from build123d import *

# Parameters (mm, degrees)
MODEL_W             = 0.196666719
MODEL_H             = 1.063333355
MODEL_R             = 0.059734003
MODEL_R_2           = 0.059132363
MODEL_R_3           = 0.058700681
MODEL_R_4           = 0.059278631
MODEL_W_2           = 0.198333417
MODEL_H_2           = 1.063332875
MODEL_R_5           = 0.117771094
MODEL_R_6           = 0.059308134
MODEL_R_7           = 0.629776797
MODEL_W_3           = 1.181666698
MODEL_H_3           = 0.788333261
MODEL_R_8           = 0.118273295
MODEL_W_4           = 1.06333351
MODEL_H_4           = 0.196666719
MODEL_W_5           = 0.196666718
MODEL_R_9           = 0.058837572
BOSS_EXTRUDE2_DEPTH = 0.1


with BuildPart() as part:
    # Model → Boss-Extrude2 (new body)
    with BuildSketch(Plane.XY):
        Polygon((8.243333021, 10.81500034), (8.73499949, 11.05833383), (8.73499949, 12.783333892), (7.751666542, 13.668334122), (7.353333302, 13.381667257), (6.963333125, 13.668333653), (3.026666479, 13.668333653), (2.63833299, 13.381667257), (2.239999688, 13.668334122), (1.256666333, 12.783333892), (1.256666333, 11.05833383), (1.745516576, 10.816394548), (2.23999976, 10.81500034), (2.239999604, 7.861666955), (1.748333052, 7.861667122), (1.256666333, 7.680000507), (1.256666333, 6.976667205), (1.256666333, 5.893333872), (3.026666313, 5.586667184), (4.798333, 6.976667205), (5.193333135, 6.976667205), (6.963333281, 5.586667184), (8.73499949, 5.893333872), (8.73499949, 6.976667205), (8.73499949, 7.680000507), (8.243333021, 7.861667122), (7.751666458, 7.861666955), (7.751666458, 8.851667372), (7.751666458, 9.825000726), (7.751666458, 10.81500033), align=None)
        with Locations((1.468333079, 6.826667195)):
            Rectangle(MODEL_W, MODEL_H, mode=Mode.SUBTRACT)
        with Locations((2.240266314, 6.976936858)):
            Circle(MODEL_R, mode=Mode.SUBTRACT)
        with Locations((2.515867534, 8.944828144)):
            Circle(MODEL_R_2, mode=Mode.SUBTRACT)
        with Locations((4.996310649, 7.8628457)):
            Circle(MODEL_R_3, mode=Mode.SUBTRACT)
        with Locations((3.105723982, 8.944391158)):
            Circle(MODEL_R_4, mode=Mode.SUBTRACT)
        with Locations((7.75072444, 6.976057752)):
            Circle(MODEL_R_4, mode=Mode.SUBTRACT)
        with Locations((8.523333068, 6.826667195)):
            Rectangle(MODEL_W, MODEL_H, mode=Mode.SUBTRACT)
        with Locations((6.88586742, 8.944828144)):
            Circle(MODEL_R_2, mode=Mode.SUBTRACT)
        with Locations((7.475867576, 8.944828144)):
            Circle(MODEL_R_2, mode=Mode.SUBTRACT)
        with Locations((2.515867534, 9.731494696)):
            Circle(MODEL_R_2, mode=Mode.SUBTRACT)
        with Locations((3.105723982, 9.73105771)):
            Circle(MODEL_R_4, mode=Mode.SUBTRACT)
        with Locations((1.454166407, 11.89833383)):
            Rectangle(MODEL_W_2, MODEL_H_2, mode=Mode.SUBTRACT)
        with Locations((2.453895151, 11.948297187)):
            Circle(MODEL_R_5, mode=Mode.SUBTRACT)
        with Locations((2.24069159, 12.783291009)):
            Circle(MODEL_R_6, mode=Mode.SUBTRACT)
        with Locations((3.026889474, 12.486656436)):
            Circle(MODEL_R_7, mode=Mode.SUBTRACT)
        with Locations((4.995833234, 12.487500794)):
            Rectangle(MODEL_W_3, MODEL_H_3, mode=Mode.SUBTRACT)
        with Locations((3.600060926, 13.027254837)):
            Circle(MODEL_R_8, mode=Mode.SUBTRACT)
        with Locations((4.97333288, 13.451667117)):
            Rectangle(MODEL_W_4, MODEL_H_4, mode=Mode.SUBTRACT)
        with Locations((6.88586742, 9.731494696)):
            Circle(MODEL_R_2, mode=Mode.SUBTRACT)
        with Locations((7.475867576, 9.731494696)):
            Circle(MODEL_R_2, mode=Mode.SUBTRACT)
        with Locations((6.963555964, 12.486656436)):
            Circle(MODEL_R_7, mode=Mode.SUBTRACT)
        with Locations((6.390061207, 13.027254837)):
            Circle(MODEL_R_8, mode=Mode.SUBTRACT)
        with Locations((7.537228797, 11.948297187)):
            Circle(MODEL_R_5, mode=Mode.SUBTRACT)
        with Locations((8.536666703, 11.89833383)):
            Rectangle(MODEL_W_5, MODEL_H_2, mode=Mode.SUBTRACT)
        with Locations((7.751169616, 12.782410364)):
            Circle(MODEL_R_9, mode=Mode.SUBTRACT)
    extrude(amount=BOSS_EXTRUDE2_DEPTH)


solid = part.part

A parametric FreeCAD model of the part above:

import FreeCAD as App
import Part
import Sketcher
from FreeCAD import Vector
Q = App.Units.Quantity


def add_polygon(sketch, points):
    """Adds a closed chain of lines whose ends are joined by coincident constraints."""
    first, n = sketch.GeometryCount, len(points)
    for a, b in zip(points, points[1:] + points[:1]):
        sketch.addGeometry(Part.LineSegment(App.Vector(*a, 0), App.Vector(*b, 0)), False)
    for i in range(n):
        sketch.addConstraint(Sketcher.Constraint("Coincident", first + i, 2, first + (i + 1) % n, 1))

doc = App.newDocument("Part")
body = doc.addObject("PartDesign::Body", "Body")

# Sketch on XY plane
sketch1 = body.newObject("Sketcher::SketchObject", "Sketch")
sketch1.AttachmentSupport = (doc.getObject("XY_Plane"), [""])
sketch1.MapMode = "FlatFace"
add_polygon(sketch1, [(8.24, 10.82), (8.73, 11.06), (8.73, 12.78), (7.75, 13.67), (7.35, 13.38), (6.96, 13.67), (3.03, 13.67), (2.64, 13.38), (2.24, 13.67), (1.26, 12.78), (1.26, 11.06), (1.75, 10.82), (2.24, 10.82), (2.24, 7.86), (1.75, 7.86), (1.26, 7.68), (1.26, 5.89), (3.03, 5.59), (4.8, 6.98), (5.19, 6.98), (6.96, 5.59), (8.73, 5.89), (8.73, 7.68), (8.24, 7.86), (7.75, 7.86), (7.75, 10.82)])  # lines 0-25
add_polygon(sketch1, [(1.57, 6.3), (1.37, 6.3), (1.37, 7.36), (1.57, 7.36)])  # lines 26-29
sketch1.addGeometry(Part.Circle(Vector(2.24, 6.98, 0), Vector(0, 0, 1), 0.06), False)  # 30
sketch1.addGeometry(Part.Circle(Vector(2.52, 8.94, 0), Vector(0, 0, 1), 0.06), False)  # 31
sketch1.addGeometry(Part.Circle(Vector(3.11, 8.94, 0), Vector(0, 0, 1), 0.06), False)  # 32
sketch1.addGeometry(Part.Circle(Vector(2.52, 9.73, 0), Vector(0, 0, 1), 0.06), False)  # 33
sketch1.addGeometry(Part.Circle(Vector(3.11, 9.73, 0), Vector(0, 0, 1), 0.06), False)  # 34
sketch1.addGeometry(Part.Circle(Vector(5, 7.86, 0), Vector(0, 0, 1), 0.06), False)  # 35
sketch1.addGeometry(Part.Circle(Vector(7.75, 6.98, 0), Vector(0, 0, 1), 0.06), False)  # 36
add_polygon(sketch1, [(8.62, 6.3), (8.42, 6.3), (8.42, 7.36), (8.62, 7.36)])  # lines 37-40
sketch1.addGeometry(Part.Circle(Vector(6.89, 8.94, 0), Vector(0, 0, 1), 0.06), False)  # 41
sketch1.addGeometry(Part.Circle(Vector(7.48, 8.94, 0), Vector(0, 0, 1), 0.06), False)  # 42
sketch1.addGeometry(Part.Circle(Vector(6.89, 9.73, 0), Vector(0, 0, 1), 0.06), False)  # 43
sketch1.addGeometry(Part.Circle(Vector(7.48, 9.73, 0), Vector(0, 0, 1), 0.06), False)  # 44
add_polygon(sketch1, [(1.55, 11.37), (1.35, 11.37), (1.35, 12.43), (1.55, 12.43)])  # lines 45-48
sketch1.addGeometry(Part.Circle(Vector(2.45, 11.95, 0), Vector(0, 0, 1), 0.12), False)  # 49
sketch1.addGeometry(Part.Circle(Vector(3.03, 12.49, 0), Vector(0, 0, 1), 0.63), False)  # 50
sketch1.addGeometry(Part.Circle(Vector(2.24, 12.78, 0), Vector(0, 0, 1), 0.06), False)  # 51
sketch1.addGeometry(Part.Circle(Vector(3.6, 13.03, 0), Vector(0, 0, 1), 0.12), False)  # 52
add_polygon(sketch1, [(5.5, 13.35), (4.44, 13.35), (4.44, 13.55), (5.5, 13.55)])  # lines 53-56
add_polygon(sketch1, [(5.59, 12.09), (4.4, 12.09), (4.4, 12.88), (5.59, 12.88)])  # lines 57-60
sketch1.addGeometry(Part.Circle(Vector(6.39, 13.03, 0), Vector(0, 0, 1), 0.12), False)  # 61
sketch1.addGeometry(Part.Circle(Vector(7.54, 11.95, 0), Vector(0, 0, 1), 0.12), False)  # 62
sketch1.addGeometry(Part.Circle(Vector(6.96, 12.49, 0), Vector(0, 0, 1), 0.63), False)  # 63
add_polygon(sketch1, [(8.64, 11.37), (8.44, 11.37), (8.44, 12.43), (8.64, 12.43)])  # lines 64-67
sketch1.addGeometry(Part.Circle(Vector(7.75, 12.78, 0), Vector(0, 0, 1), 0.06), False)  # 68
sketch1.addConstraint(Sketcher.Constraint("Vertical", 1))
sketch1.addConstraint(Sketcher.Constraint("Horizontal", 5))
sketch1.addConstraint(Sketcher.Constraint("Vertical", 9))
sketch1.addConstraint(Sketcher.Constraint("Vertical", 12))
sketch1.addConstraint(Sketcher.Constraint("Horizontal", 13))
sketch1.addConstraint(Sketcher.Constraint("Vertical", 15))
sketch1.addConstraint(Sketcher.Constraint("Horizontal", 18))
sketch1.addConstraint(Sketcher.Constraint("Vertical", 21))
sketch1.addConstraint(Sketcher.Constraint("Horizontal", 23))
sketch1.addConstraint(Sketcher.Constraint("Vertical", 24))
sketch1.addConstraint(Sketcher.Constraint("Horizontal", 25))
sketch1.addConstraint(Sketcher.Constraint("Horizontal", 26))
sketch1.addConstraint(Sketcher.Constraint("Vertical", 27))
sketch1.addConstraint(Sketcher.Constraint("Horizontal", 28))
sketch1.addConstraint(Sketcher.Constraint("Vertical", 29))
sketch1.addConstraint(Sketcher.Constraint("Horizontal", 37))
sketch1.addConstraint(Sketcher.Constraint("Vertical", 38))
sketch1.addConstraint(Sketcher.Constraint("Horizontal", 39))
sketch1.addConstraint(Sketcher.Constraint("Vertical", 40))
sketch1.addConstraint(Sketcher.Constraint("Horizontal", 45))
sketch1.addConstraint(Sketcher.Constraint("Vertical", 46))
sketch1.addConstraint(Sketcher.Constraint("Horizontal", 47))
sketch1.addConstraint(Sketcher.Constraint("Vertical", 48))
sketch1.addConstraint(Sketcher.Constraint("Horizontal", 53))
sketch1.addConstraint(Sketcher.Constraint("Vertical", 54))
sketch1.addConstraint(Sketcher.Constraint("Horizontal", 55))
sketch1.addConstraint(Sketcher.Constraint("Vertical", 56))
sketch1.addConstraint(Sketcher.Constraint("Horizontal", 57))
sketch1.addConstraint(Sketcher.Constraint("Vertical", 58))
sketch1.addConstraint(Sketcher.Constraint("Horizontal", 59))
sketch1.addConstraint(Sketcher.Constraint("Vertical", 60))
sketch1.addConstraint(Sketcher.Constraint("Horizontal", 64))
sketch1.addConstraint(Sketcher.Constraint("Vertical", 65))
sketch1.addConstraint(Sketcher.Constraint("Horizontal", 66))
sketch1.addConstraint(Sketcher.Constraint("Vertical", 67))
sketch1.addConstraint(Sketcher.Constraint("Equal", 31, 33))
sketch1.addConstraint(Sketcher.Constraint("Equal", 32, 34))
sketch1.addConstraint(Sketcher.Constraint("Equal", 34, 36))
sketch1.addConstraint(Sketcher.Constraint("Equal", 33, 41))
sketch1.addConstraint(Sketcher.Constraint("Equal", 41, 42))
sketch1.addConstraint(Sketcher.Constraint("Equal", 42, 43))
sketch1.addConstraint(Sketcher.Constraint("Equal", 43, 44))
sketch1.addConstraint(Sketcher.Constraint("Equal", 52, 61))
sketch1.addConstraint(Sketcher.Constraint("Equal", 49, 62))
sketch1.addConstraint(Sketcher.Constraint("Equal", 50, 63))
sketch1.addConstraint(Sketcher.Constraint("Horizontal", 31, 3, 41, 3))
sketch1.addConstraint(Sketcher.Constraint("Horizontal", 41, 3, 42, 3))
sketch1.addConstraint(Sketcher.Constraint("Horizontal", 33, 3, 43, 3))
sketch1.addConstraint(Sketcher.Constraint("Horizontal", 43, 3, 44, 3))
sketch1.addConstraint(Sketcher.Constraint("Horizontal", 52, 3, 61, 3))
sketch1.addConstraint(Sketcher.Constraint("Horizontal", 49, 3, 62, 3))
sketch1.addConstraint(Sketcher.Constraint("Horizontal", 50, 3, 63, 3))
sketch1.addConstraint(Sketcher.Constraint("Horizontal", 2, 2, 4, 2))
sketch1.addConstraint(Sketcher.Constraint("Horizontal", 3, 2, 6, 2))
sketch1.addConstraint(Sketcher.Constraint("Horizontal", 5, 2, 7, 2))
sketch1.addConstraint(Sketcher.Constraint("Horizontal", 1, 2, 8, 2))
sketch1.addConstraint(Sketcher.Constraint("Horizontal", 0, 2, 9, 2))
sketch1.addConstraint(Sketcher.Constraint("Horizontal", 16, 2, 19, 2))
sketch1.addConstraint(Sketcher.Constraint("Horizontal", 15, 2, 20, 2))
sketch1.addConstraint(Sketcher.Constraint("Horizontal", 14, 2, 21, 2))
sketch1.addConstraint(Sketcher.Constraint("Horizontal", 13, 2, 22, 2))
sketch1.addConstraint(Sketcher.Constraint("Horizontal", 11, 2, 24, 2))
sketch1.addConstraint(Sketcher.Constraint("Horizontal", 29, 2, 37, 2))
sketch1.addConstraint(Sketcher.Constraint("Horizontal", 28, 2, 38, 2))
sketch1.addConstraint(Sketcher.Constraint("Horizontal", 48, 2, 64, 2))
sketch1.addConstraint(Sketcher.Constraint("Horizontal", 47, 2, 65, 2))
sketch1.addConstraint(Sketcher.Constraint("Vertical", 31, 3, 33, 3))
sketch1.addConstraint(Sketcher.Constraint("Vertical", 32, 3, 34, 3))
sketch1.addConstraint(Sketcher.Constraint("Vertical", 41, 3, 43, 3))
sketch1.addConstraint(Sketcher.Constraint("Vertical", 42, 3, 44, 3))
sketch1.addConstraint(Sketcher.Constraint("Vertical", 7, 2, 11, 2))
sketch1.addConstraint(Sketcher.Constraint("Vertical", 9, 2, 14, 2))
sketch1.addConstraint(Sketcher.Constraint("Vertical", 5, 2, 16, 2))
sketch1.addConstraint(Sketcher.Constraint("Vertical", 4, 2, 19, 2))
sketch1.addConstraint(Sketcher.Constraint("Vertical", 1, 2, 20, 2))
sketch1.addConstraint(Sketcher.Constraint("Vertical", 2, 2, 23, 2))
sketch1.addConstraint(Sketcher.Constraint("Vertical", 22, 2, 25, 2))
sketch1.addConstraint(Sketcher.Constraint("Equal", 13, 23))
sketch1.addConstraint(Sketcher.Constraint("Equal", 28, 37))
sketch1.addConstraint(Sketcher.Constraint("Equal", 39, 64))
sketch1.addConstraint(Sketcher.Constraint("Equal", 55, 27))
sketch1.addConstraint(Sketcher.Constraint("Equal", 40, 46))
sketch1.addConstraint(Sketcher.Constraint("Equal", 66, 54))
sketch1.addConstraint(Sketcher.Constraint("Equal", 3, 7))
sketch1.addConstraint(Sketcher.Constraint("Equal", 2, 8))
sketch1.addConstraint(Sketcher.Constraint("Diameter", 35, Q("0.117401 mm")))
sketch1.addConstraint(Sketcher.Constraint("Diameter", 30, Q("0.119468 mm")))
sketch1.addConstraint(Sketcher.Constraint("DistanceX", 18, 1, 18, 2, Q("0.395 mm")))
sketch1.addConstraint(Sketcher.Constraint("DistanceY", 1, 1, 1, 2, Q("1.725 mm")))
sketch1.addConstraint(Sketcher.Constraint("DistanceX", -1, 1, 7, 2, Q("2.24 mm")))
sketch1.addConstraint(Sketcher.Constraint("DistanceY", -1, 1, 14, 2, Q("7.680001 mm")))
sketch1.addConstraint(Sketcher.Constraint("DistanceX", -1, 1, 26, 2, Q("1.37 mm")))
sketch1.addConstraint(Sketcher.Constraint("DistanceY", -1, 1, 46, 2, Q("12.43 mm")))
sketch1.addConstraint(Sketcher.Constraint("DistanceY", -1, 1, 54, 2, Q("13.55 mm")))
sketch1.addConstraint(Sketcher.Constraint("Diameter", 31, Q("0.118265 mm")))
sketch1.addConstraint(Sketcher.Constraint("Diameter", 32, Q("0.118557 mm")))
sketch1.addConstraint(Sketcher.Constraint("Diameter", 49, Q("0.235542 mm")))
sketch1.addConstraint(Sketcher.Constraint("Diameter", 50, Q("1.259554 mm")))
sketch1.addConstraint(Sketcher.Constraint("Diameter", 51, Q("0.118616 mm")))
sketch1.addConstraint(Sketcher.Constraint("Diameter", 52, Q("0.236547 mm")))
sketch1.addConstraint(Sketcher.Constraint("Diameter", 68, Q("0.117675 mm")))
sketch1.addConstraint(Sketcher.Constraint("DistanceX", -1, 1, 0, 2, Q("8.734999 mm")))
sketch1.addConstraint(Sketcher.Constraint("DistanceY", -1, 1, 11, 2, Q("10.815 mm")))
sketch1.addConstraint(Sketcher.Constraint("DistanceY", -1, 1, 26, 2, Q("6.295001 mm")))
sketch1.addConstraint(Sketcher.Constraint("DistanceX", -1, 1, 37, 2, Q("8.425 mm")))
sketch1.addConstraint(Sketcher.Constraint("DistanceX", -1, 1, 45, 2, Q("1.355 mm")))
sketch1.addConstraint(Sketcher.Constraint("DistanceX", -1, 1, 55, 2, Q("5.505 mm")))
sketch1.addConstraint(Sketcher.Constraint("DistanceX", -1, 1, 57, 2, Q("4.405 mm")))
sketch1.addConstraint(Sketcher.Constraint("DistanceX", -1, 1, 66, 2, Q("8.635 mm")))
sketch1.addConstraint(Sketcher.Constraint("Distance", 2, Q("1.32294 mm")))
sketch1.addConstraint(Sketcher.Constraint("Distance", 3, Q("0.490762 mm")))
sketch1.addConstraint(Sketcher.Constraint("Distance", 6, Q("0.482681 mm")))
sketch1.addConstraint(Sketcher.Constraint("Distance", 16, Q("1.79637 mm")))
sketch1.addConstraint(Sketcher.Constraint("Distance", 20, Q("1.798012 mm")))
sketch1.addConstraint(Sketcher.Constraint("DistanceX", 5, 2, 5, 1, Q("3.936667 mm")))
sketch1.addConstraint(Sketcher.Constraint("DistanceX", 13, 2, 13, 1, Q("0.491667 mm")))
sketch1.addConstraint(Sketcher.Constraint("DistanceX", 26, 2, 26, 1, Q("0.196667 mm")))
sketch1.addConstraint(Sketcher.Constraint("DistanceX", 45, 2, 45, 1, Q("0.198333 mm")))
sketch1.addConstraint(Sketcher.Constraint("DistanceX", 53, 2, 53, 1, Q("1.063334 mm")))
sketch1.addConstraint(Sketcher.Constraint("DistanceX", 57, 2, 57, 1, Q("1.181667 mm")))
sketch1.addConstraint(Sketcher.Constraint("DistanceY", 12, 2, 12, 1, Q("2.953333 mm")))
sketch1.addConstraint(Sketcher.Constraint("DistanceY", 15, 2, 15, 1, Q("1.786667 mm")))
sketch1.addConstraint(Sketcher.Constraint("DistanceY", 58, 1, 58, 2, Q("0.788333 mm")))
sketch1.addConstraint(Sketcher.Constraint("DistanceY", -1, 1, 31, 3, Q("8.944828 mm")))
sketch1.addConstraint(Sketcher.Constraint("DistanceY", -1, 1, 32, 3, Q("8.944391 mm")))
sketch1.addConstraint(Sketcher.Constraint("DistanceX", -1, 1, 35, 3, Q("4.996311 mm")))
sketch1.addConstraint(Sketcher.Constraint("DistanceX", -1, 1, 50, 3, Q("3.026889 mm")))
sketch1.addConstraint(Sketcher.Constraint("DistanceX", -1, 1, 51, 3, Q("2.240692 mm")))
sketch1.addConstraint(Sketcher.Constraint("DistanceY", -1, 1, 51, 3, Q("12.783291 mm")))
sketch1.addConstraint(Sketcher.Constraint("DistanceX", -1, 1, 52, 3, Q("3.600061 mm")))
sketch1.addConstraint(Sketcher.Constraint("DistanceX", -1, 1, 61, 3, Q("6.390061 mm")))
sketch1.addConstraint(Sketcher.Constraint("DistanceX", -1, 1, 62, 3, Q("7.537229 mm")))
sketch1.addConstraint(Sketcher.Constraint("DistanceX", -1, 1, 68, 3, Q("7.75117 mm")))
sketch1.addConstraint(Sketcher.Constraint("DistanceY", -1, 1, 68, 3, Q("12.78241 mm")))
sketch1.addConstraint(Sketcher.Constraint("Distance", 0, Q("0.548586 mm")))
sketch1.addConstraint(Sketcher.Constraint("Distance", 10, Q("0.545444 mm")))
sketch1.addConstraint(Sketcher.Constraint("Distance", 11, Q("0.494485 mm")))
sketch1.addConstraint(Sketcher.Constraint("Distance", 14, Q("0.524155 mm")))
sketch1.addConstraint(Sketcher.Constraint("Distance", 17, Q("2.251867 mm")))
sketch1.addConstraint(Sketcher.Constraint("Distance", 19, Q("2.250556 mm")))
sketch1.addConstraint(Sketcher.Constraint("DistanceX", -1, 1, 30, 3, Q("2.240266 mm")))
sketch1.addConstraint(Sketcher.Constraint("DistanceY", -1, 1, 30, 3, Q("6.976937 mm")))
sketch1.addConstraint(Sketcher.Constraint("DistanceX", -1, 1, 31, 3, Q("2.515868 mm")))
sketch1.addConstraint(Sketcher.Constraint("DistanceX", -1, 1, 32, 3, Q("3.105724 mm")))
sketch1.addConstraint(Sketcher.Constraint("DistanceY", -1, 1, 33, 3, Q("9.731495 mm")))
sketch1.addConstraint(Sketcher.Constraint("DistanceY", -1, 1, 34, 3, Q("9.731058 mm")))
sketch1.addConstraint(Sketcher.Constraint("DistanceY", -1, 1, 35, 3, Q("7.862846 mm")))
sketch1.addConstraint(Sketcher.Constraint("DistanceX", -1, 1, 36, 3, Q("7.750724 mm")))
sketch1.addConstraint(Sketcher.Constraint("DistanceY", -1, 1, 36, 3, Q("6.976058 mm")))
sketch1.addConstraint(Sketcher.Constraint("DistanceX", -1, 1, 41, 3, Q("6.885867 mm")))
sketch1.addConstraint(Sketcher.Constraint("DistanceX", -1, 1, 42, 3, Q("7.475868 mm")))
sketch1.addConstraint(Sketcher.Constraint("DistanceX", -1, 1, 49, 3, Q("2.453895 mm")))
sketch1.addConstraint(Sketcher.Constraint("DistanceY", -1, 1, 49, 3, Q("11.948297 mm")))
sketch1.addConstraint(Sketcher.Constraint("DistanceY", -1, 1, 50, 3, Q("12.486656 mm")))
sketch1.addConstraint(Sketcher.Constraint("DistanceY", -1, 1, 52, 3, Q("13.027255 mm")))
sketch1.addConstraint(Sketcher.Constraint("DistanceX", -1, 1, 63, 3, Q("6.963556 mm")))
sketch1.addConstraint(Sketcher.Constraint("DistanceY", -1, 1, 57, 2, Q("12.093334 mm")))
pad1 = body.newObject("PartDesign::Pad", "Pad")
pad1.Profile = sketch1
pad1.Length = 0.1

doc.recompute()
